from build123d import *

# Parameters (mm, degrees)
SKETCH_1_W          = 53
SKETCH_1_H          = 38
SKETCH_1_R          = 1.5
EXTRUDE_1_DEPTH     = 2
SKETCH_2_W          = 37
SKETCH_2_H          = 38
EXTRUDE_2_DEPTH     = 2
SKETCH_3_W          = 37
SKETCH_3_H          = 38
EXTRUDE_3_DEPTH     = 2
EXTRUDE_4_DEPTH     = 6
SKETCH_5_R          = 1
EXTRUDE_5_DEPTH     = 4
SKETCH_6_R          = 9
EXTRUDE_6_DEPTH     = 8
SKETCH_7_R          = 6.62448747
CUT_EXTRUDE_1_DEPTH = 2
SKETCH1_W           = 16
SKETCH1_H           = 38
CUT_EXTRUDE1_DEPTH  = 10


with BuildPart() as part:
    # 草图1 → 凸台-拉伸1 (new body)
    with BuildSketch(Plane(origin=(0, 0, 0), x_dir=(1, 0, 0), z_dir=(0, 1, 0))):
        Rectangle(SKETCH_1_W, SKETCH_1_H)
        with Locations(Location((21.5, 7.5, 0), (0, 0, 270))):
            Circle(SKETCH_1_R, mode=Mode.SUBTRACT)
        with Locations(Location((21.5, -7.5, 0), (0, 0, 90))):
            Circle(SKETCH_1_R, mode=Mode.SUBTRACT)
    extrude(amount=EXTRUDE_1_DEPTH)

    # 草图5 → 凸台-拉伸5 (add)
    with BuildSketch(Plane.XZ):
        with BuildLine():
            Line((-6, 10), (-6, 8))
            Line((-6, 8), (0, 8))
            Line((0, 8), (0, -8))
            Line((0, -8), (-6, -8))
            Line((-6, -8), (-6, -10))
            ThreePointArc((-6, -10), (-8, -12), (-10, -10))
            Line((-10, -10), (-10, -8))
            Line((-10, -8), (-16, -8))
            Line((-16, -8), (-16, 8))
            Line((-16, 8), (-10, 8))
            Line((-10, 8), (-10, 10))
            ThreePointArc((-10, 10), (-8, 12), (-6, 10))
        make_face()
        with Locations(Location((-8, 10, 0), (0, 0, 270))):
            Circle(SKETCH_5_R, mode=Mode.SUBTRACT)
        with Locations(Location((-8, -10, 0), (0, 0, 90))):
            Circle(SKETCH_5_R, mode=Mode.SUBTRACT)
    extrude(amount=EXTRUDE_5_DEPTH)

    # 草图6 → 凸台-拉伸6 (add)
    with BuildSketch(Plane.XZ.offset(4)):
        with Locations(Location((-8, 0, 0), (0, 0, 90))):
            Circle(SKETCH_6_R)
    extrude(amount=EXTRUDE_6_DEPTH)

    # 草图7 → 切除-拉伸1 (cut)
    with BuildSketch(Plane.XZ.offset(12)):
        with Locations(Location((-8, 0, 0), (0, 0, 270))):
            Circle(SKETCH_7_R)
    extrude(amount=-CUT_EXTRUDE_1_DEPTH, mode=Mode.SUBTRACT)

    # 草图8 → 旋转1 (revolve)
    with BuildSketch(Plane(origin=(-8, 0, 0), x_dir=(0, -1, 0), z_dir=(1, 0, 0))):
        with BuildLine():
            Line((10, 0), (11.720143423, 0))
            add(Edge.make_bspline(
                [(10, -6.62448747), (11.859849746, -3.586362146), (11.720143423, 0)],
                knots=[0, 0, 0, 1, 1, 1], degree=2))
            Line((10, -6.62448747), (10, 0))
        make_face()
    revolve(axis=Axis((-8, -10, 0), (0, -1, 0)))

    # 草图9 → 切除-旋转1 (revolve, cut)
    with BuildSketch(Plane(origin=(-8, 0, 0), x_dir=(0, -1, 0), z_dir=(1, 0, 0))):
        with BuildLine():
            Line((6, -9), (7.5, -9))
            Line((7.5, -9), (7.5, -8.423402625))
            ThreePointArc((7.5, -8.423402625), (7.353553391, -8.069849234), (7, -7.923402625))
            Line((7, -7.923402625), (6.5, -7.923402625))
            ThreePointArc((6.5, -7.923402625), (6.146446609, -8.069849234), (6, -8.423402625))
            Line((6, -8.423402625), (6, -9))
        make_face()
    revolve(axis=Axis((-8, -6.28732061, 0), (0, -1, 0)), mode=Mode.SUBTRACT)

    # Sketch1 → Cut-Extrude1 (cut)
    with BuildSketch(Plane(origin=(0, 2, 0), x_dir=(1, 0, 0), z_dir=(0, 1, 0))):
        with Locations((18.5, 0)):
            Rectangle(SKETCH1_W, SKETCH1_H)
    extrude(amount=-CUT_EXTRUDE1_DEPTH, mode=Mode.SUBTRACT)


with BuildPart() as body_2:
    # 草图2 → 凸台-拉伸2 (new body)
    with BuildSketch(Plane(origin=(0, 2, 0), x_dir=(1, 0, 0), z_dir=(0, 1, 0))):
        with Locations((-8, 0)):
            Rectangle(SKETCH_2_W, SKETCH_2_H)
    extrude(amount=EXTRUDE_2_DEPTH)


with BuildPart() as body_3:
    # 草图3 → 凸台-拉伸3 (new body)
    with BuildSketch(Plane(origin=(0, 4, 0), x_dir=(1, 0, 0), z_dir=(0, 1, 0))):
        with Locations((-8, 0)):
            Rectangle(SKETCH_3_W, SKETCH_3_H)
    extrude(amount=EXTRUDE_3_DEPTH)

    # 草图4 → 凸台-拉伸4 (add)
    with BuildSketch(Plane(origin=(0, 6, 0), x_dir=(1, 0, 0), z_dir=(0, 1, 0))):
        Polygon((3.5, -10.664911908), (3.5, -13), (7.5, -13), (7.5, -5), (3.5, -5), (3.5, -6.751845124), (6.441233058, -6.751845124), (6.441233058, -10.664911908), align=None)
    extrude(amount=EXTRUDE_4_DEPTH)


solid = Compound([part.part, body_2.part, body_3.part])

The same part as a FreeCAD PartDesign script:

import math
import FreeCAD as App
import Part
import Sketcher

V = App.Vector
Q = App.Units.Quantity


def add_polygon(sketch, points):
    """Adds a closed chain of lines whose ends are joined by coincident constraints."""
    first, n = sketch.GeometryCount, len(points)
    for a, b in zip(points, points[1:] + points[:1]):
        sketch.addGeometry(Part.LineSegment(App.Vector(*a, 0), App.Vector(*b, 0)), False)
    for i in range(n):
        sketch.addConstraint(Sketcher.Constraint("Coincident", first + i, 2, first + (i + 1) % n, 1))

doc = App.newDocument("Part")
body = doc.addObject("PartDesign::Body", "Body")

sketch1 = doc.addObject("Sketcher::SketchObject", "Sketch")
body.addObject(sketch1)
sketch1.AttachmentSupport = (doc.XZ_Plane, [""])
sketch1.MapMode = "FlatFace"
add_polygon(sketch1, [(-26.5, -19), (-26.5, 19), (26.5, 19), (26.5, -19)])
sketch1.addGeometry(Part.Circle(V(21.5, 7.5, 0), V(0, 0, 1), 1.5), False)
sketch1.addGeometry(Part.Circle(V(21.5, -7.5, 0), V(0, 0, 1), 1.5), False)
sketch1.addConstraint(Sketcher.Constraint("Vertical", 0))
sketch1.addConstraint(Sketcher.Constraint("Horizontal", 1))
sketch1.addConstraint(Sketcher.Constraint("Vertical", 2))
sketch1.addConstraint(Sketcher.Constraint("Horizontal", 3))
sketch1.addConstraint(Sketcher.Constraint("Equal", 4, 5))
sketch1.addConstraint(Sketcher.Constraint("Symmetric", 0, 2, 2, 2, -1, 1))
sketch1.addConstraint(Sketcher.Constraint("Symmetric", 4, 3, 5, 3, -1))
sketch1.addConstraint(Sketcher.Constraint("Diameter", 4, Q("3 mm")))
sketch1.addConstraint(Sketcher.Constraint("DistanceX", 1, 1, 1, 2, Q("53 mm")))
sketch1.addConstraint(Sketcher.Constraint("DistanceY", 0, 1, 0, 2, Q("38 mm")))
sketch1.addConstraint(Sketcher.Constraint("DistanceY", 5, 3, 4, 3, Q("15 mm")))
sketch1.addConstraint(Sketcher.Constraint("DistanceX", 0, 2, 4, 3, Q("48 mm")))
pad1 = doc.addObject("PartDesign::Pad", "Pad")
body.addObject(pad1)
pad1.Profile = sketch1
pad1.Length = 2
pad1.Reversed = True

sketch2 = doc.addObject("Sketcher::SketchObject", "Sketch001")
body.addObject(sketch2)
sketch2.AttachmentSupport = (doc.XZ_Plane, [""])
sketch2.MapMode = "FlatFace"
sketch2.addGeometry(Part.LineSegment(V(-6, 8, 0), V(-6, 10, 0)), False)
sketch2.addGeometry(Part.ArcOfCircle(Part.Circle(V(-8, 10, 0), V(0, 0, 1), 2), math.radians(0), math.radians(180)), False)
sketch2.addGeometry(Part.LineSegment(V(-10, 10, 0), V(-10, 8, 0)), False)
sketch2.addGeometry(Part.LineSegment(V(-10, 8, 0), V(-16, 8, 0)), False)
sketch2.addGeometry(Part.LineSegment(V(-16, 8, 0), V(-16, -8, 0)), False)
sketch2.addGeometry(Part.LineSegment(V(-16, -8, 0), V(-10, -8, 0)), False)
sketch2.addGeometry(Part.LineSegment(V(-10, -8, 0), V(-10, -10, 0)), False)
sketch2.addGeometry(Part.ArcOfCircle(Part.Circle(V(-8, -10, 0), V(0, 0, 1), 2), math.radians(180), math.radians(360)), False)
sketch2.addGeometry(Part.LineSegment(V(-6, -10, 0), V(-6, -8, 0)), False)
sketch2.addGeometry(Part.LineSegment(V(-6, -8, 0), V(0, -8, 0)), False)
sketch2.addGeometry(Part.LineSegment(V(0, -8, 0), V(0, 8, 0)), False)
sketch2.addGeometry(Part.LineSegment(V(0, 8, 0), V(-6, 8, 0)), False)
sketch2.addGeometry(Part.Circle(V(-8, -10, 0), V(0, 0, 1), 1), False)
sketch2.addGeometry(Part.Circle(V(-8, 10, 0), V(0, 0, 1), 1), False)
sketch2.addConstraint(Sketcher.Constraint("Tangent", 0, 2, 1, 1))
sketch2.addConstraint(Sketcher.Constraint("Tangent", 1, 2, 2, 1))
sketch2.addConstraint(Sketcher.Constraint("Coincident", 2, 2, 3, 1))
sketch2.addConstraint(Sketcher.Constraint("Coincident", 3, 2, 4, 1))
sketch2.addConstraint(Sketcher.Constraint("Coincident", 4, 2, 5, 1))
sketch2.addConstraint(Sketcher.Constraint("Coincident", 5, 2, 6, 1))
sketch2.addConstraint(Sketcher.Constraint("Tangent", 6, 2, 7, 1))
sketch2.addConstraint(Sketcher.Constraint("Tangent", 7, 2, 8, 1))
sketch2.addConstraint(Sketcher.Constraint("Coincident", 8, 2, 9, 1))
sketch2.addConstraint(Sketcher.Constraint("Coincident", 9, 2, 10, 1))
sketch2.addConstraint(Sketcher.Constraint("Coincident", 10, 2, 11, 1))
sketch2.addConstraint(Sketcher.Constraint("Coincident", 11, 2, 0, 1))
sketch2.addConstraint(Sketcher.Constraint("Vertical", 0))
sketch2.addConstraint(Sketcher.Constraint("Vertical", 2))
sketch2.addConstraint(Sketcher.Constraint("Horizontal", 3))
sketch2.addConstraint(Sketcher.Constraint("Vertical", 4))
sketch2.addConstraint(Sketcher.Constraint("Horizontal", 5))
sketch2.addConstraint(Sketcher.Constraint("Vertical", 6))
sketch2.addConstraint(Sketcher.Constraint("Vertical", 8))
sketch2.addConstraint(Sketcher.Constraint("Horizontal", 9))
sketch2.addConstraint(Sketcher.Constraint("Vertical", 10))
sketch2.addConstraint(Sketcher.Constraint("Horizontal", 11))
sketch2.addConstraint(Sketcher.Constraint("Coincident", 12, 3, 7, 3))
sketch2.addConstraint(Sketcher.Constraint("Coincident", 13, 3, 1, 3))
sketch2.addConstraint(Sketcher.Constraint("Equal", 1, 7))
sketch2.addConstraint(Sketcher.Constraint("Equal", 12, 13))
sketch2.addConstraint(Sketcher.Constraint("Symmetric", 9, 2, 10, 2, -1, 1))
sketch2.addConstraint(Sketcher.Constraint("Symmetric", 1, 3, 7, 3, -1))
sketch2.addConstraint(Sketcher.Constraint("Horizontal", 5, 2, 8, 2))
sketch2.addConstraint(Sketcher.Constraint("Horizontal", 3, 2, 10, 2))
sketch2.addConstraint(Sketcher.Constraint("Equal", 5, 9))
sketch2.addConstraint(Sketcher.Constraint("Diameter", 12, Q("2 mm")))
sketch2.addConstraint(Sketcher.Constraint("Radius", 1, Q("2 mm")))
sketch2.addConstraint(Sketcher.Constraint("DistanceX", 3, 2, 3, 1, Q("6 mm")))
sketch2.addConstraint(Sketcher.Constraint("DistanceY", 0, 1, 0, 2, Q("2 mm")))
sketch2.addConstraint(Sketcher.Constraint("DistanceY", 4, 2, 4, 1, Q("16 mm")))
pad2 = doc.addObject("PartDesign::Pad", "Pad001")
body.addObject(pad2)
pad2.Profile = sketch2
pad2.Length = 4

sketch3 = doc.addObject("Sketcher::SketchObject", "Sketch002")
body.addObject(sketch3)
sketch3.AttachmentSupport = (doc.XZ_Plane, [""])
sketch3.MapMode = "FlatFace"
sketch3.AttachmentOffset = App.Placement(V(0, 0, 4), App.Rotation())
sketch3.addGeometry(Part.Circle(V(-8, 0, 0), V(0, 0, 1), 9), False)
sketch3.addConstraint(Sketcher.Constraint("PointOnObject", 0, 3, -1))
sketch3.addConstraint(Sketcher.Constraint("Diameter", 0, Q("18 mm")))
sketch3.addConstraint(Sketcher.Constraint("DistanceX", 0, 3, -1, 1, Q("8 mm")))
pad3 = doc.addObject("PartDesign::Pad", "Pad002")
body.addObject(pad3)
pad3.Profile = sketch3
pad3.Length = 8

sketch4 = doc.addObject("Sketcher::SketchObject", "Sketch003")
body.addObject(sketch4)
sketch4.AttachmentSupport = (doc.XZ_Plane, [""])
sketch4.MapMode = "FlatFace"
sketch4.AttachmentOffset = App.Placement(V(0, 0, 12), App.Rotation())
sketch4.addGeometry(Part.Circle(V(-8, 0, 0), V(0, 0, 1), 7), False)
sketch4.addConstraint(Sketcher.Constraint("PointOnObject", 0, 3, -1))
sketch4.addConstraint(Sketcher.Constraint("DistanceX", 0, 3, -1, 1, Q("8 mm")))
sketch4.addConstraint(Sketcher.Constraint("Diameter", 0, Q("13.248975 mm")))
pocket1 = doc.addObject("PartDesign::Pocket", "Pocket")
body.addObject(pocket1)
pocket1.Profile = sketch4
pocket1.Length = 2

sketch5 = doc.addObject("Sketcher::SketchObject", "Sketch004")
body.addObject(sketch5)
sketch5.AttachmentSupport = (doc.YZ_Plane, [""])
sketch5.MapMode = "FlatFace"
sketch5.AttachmentOffset = App.Placement(V(0, 0, -8), App.Rotation())
sketch5.addGeometry(Part.LineSegment(V(-11.720143, 0, 0), V(-10, 0, 0)), False)
sketch5.addGeometry(Part.LineSegment(V(-10, 0, 0), V(-10, 6.624487, 0)), False)
sketch5.addGeometry(Part.BSplineCurve([V(-10, 6.624487, 0), V(-11.85985, 3.586362, 0), V(-11.720143, 0, 0)], [3, 3], [0, 1], False, 2, [1, 1, 1], False), False)
sketch5.addConstraint(Sketcher.Constraint("Block", 2))
sketch5.addConstraint(Sketcher.Constraint("Coincident", 0, 2, 1, 1))
sketch5.addConstraint(Sketcher.Constraint("Coincident", 1, 2, 2, 1))
sketch5.addConstraint(Sketcher.Constraint("Coincident", 2, 2, 0, 1))
sketch5.addConstraint(Sketcher.Constraint("Horizontal", 0))
sketch5.addConstraint(Sketcher.Constraint("Vertical", 1))
revolution = doc.addObject("PartDesign::Revolution", "Revolution")
body.addObject(revolution)
revolution.Profile = sketch5
revolution.ReferenceAxis = (sketch5, ["H_Axis"])
revolution.Angle = 360

sketch6 = doc.addObject("Sketcher::SketchObject", "Sketch005")
body.addObject(sketch6)
sketch6.AttachmentSupport = (doc.YZ_Plane, [""])
sketch6.MapMode = "FlatFace"
sketch6.AttachmentOffset = App.Placement(V(0, 0, -8), App.Rotation())
sketch6.addGeometry(Part.LineSegment(V(-6, 9, 0), V(-7.5, 9, 0)), False)
sketch6.addGeometry(Part.LineSegment(V(-7.5, 9, 0), V(-7.5, 8.42, 0)), False)
sketch6.addGeometry(Part.ArcOfCircle(Part.Circle(V(-7, 8.42, 0), V(0, 0, 1), 0.5), math.radians(180), math.radians(270)), False)
sketch6.addGeometry(Part.LineSegment(V(-7, 7.92, 0), V(-6.5, 7.92, 0)), False)
sketch6.addGeometry(Part.ArcOfCircle(Part.Circle(V(-6.5, 8.42, 0), V(0, 0, 1), 0.5), math.radians(-90), math.radians(0)), False)
sketch6.addGeometry(Part.LineSegment(V(-6, 8.42, 0), V(-6, 9, 0)), False)
sketch6.addConstraint(Sketcher.Constraint("Coincident", 0, 2, 1, 1))
sketch6.addConstraint(Sketcher.Constraint("Tangent", 1, 2, 2, 1))
sketch6.addConstraint(Sketcher.Constraint("Tangent", 2, 2, 3, 1))
sketch6.addConstraint(Sketcher.Constraint("Tangent", 3, 2, 4, 1))
sketch6.addConstraint(Sketcher.Constraint("Tangent", 4, 2, 5, 1))
sketch6.addConstraint(Sketcher.Constraint("Coincident", 5, 2, 0, 1))
sketch6.addConstraint(Sketcher.Constraint("Horizontal", 0))
sketch6.addConstraint(Sketcher.Constraint("Vertical", 1))
sketch6.addConstraint(Sketcher.Constraint("Horizontal", 3))
sketch6.addConstraint(Sketcher.Constraint("Vertical", 5))
sketch6.addConstraint(Sketcher.Constraint("Equal", 2, 4))
sketch6.addConstraint(Sketcher.Constraint("Radius", 2, Q("0.5 mm")))
sketch6.addConstraint(Sketcher.Constraint("DistanceX", 0, 2, 0, 1, Q("1.5 mm")))
sketch6.addConstraint(Sketcher.Constraint("DistanceX", 2, 3, -1, 1, Q("7 mm")))
sketch6.addConstraint(Sketcher.Constraint("DistanceY", -1, 1, 0, 2, Q("9 mm")))
sketch6.addConstraint(Sketcher.Constraint("DistanceY", 1, 2, 1, 1, Q("0.576597 mm")))
groove = doc.addObject("PartDesign::Groove", "Groove")
body.addObject(groove)
groove.Profile = sketch6
groove.ReferenceAxis = (sketch6, ["H_Axis"])
groove.Angle = 360

sketch7 = doc.addObject("Sketcher::SketchObject", "Sketch006")
body.addObject(sketch7)
sketch7.AttachmentSupport = (doc.XZ_Plane, [""])
sketch7.MapMode = "FlatFace"
sketch7.AttachmentOffset = App.Placement(V(0, 0, -2), App.Rotation())
add_polygon(sketch7, [(10, -19), (10, 19), (26, 19), (26, -19)])
sketch7.addConstraint(Sketcher.Constraint("Vertical", 0))
sketch7.addConstraint(Sketcher.Constraint("Horizontal", 1))
sketch7.addConstraint(Sketcher.Constraint("Vertical", 2))
sketch7.addConstraint(Sketcher.Constraint("Horizontal", 3))
sketch7.addConstraint(Sketcher.Constraint("DistanceX", 1, 1, 1, 2, Q("16 mm")))
sketch7.addConstraint(Sketcher.Constraint("DistanceY", 0, 1, 0, 2, Q("38 mm")))
sketch7.addConstraint(Sketcher.Constraint("DistanceY", -1, 1, 0, 2, Q("19 mm")))
sketch7.addConstraint(Sketcher.Constraint("DistanceX", -1, 1, 0, 2, Q("10.5 mm")))
pocket2 = doc.addObject("PartDesign::Pocket", "Pocket001")
body.addObject(pocket2)
pocket2.Profile = sketch7
pocket2.Length = 10
pocket2.Reversed = True
body2 = doc.addObject("PartDesign::Body", "Body001")

sketch8 = doc.addObject("Sketcher::SketchObject", "Sketch007")
body2.addObject(sketch8)
sketch8.AttachmentSupport = (doc.getObject("XZ_Plane001"), [""])
sketch8.MapMode = "FlatFace"
sketch8.AttachmentOffset = App.Placement(V(0, 0, -2), App.Rotation())
add_polygon(sketch8, [(-26, -19), (-26, 19), (10, 19), (10, -19)])
sketch8.addConstraint(Sketcher.Constraint("Vertical", 0))
sketch8.addConstraint(Sketcher.Constraint("Horizontal", 1))
sketch8.addConstraint(Sketcher.Constraint("Vertical", 2))
sketch8.addConstraint(Sketcher.Constraint("Horizontal", 3))
sketch8.addConstraint(Sketcher.Constraint("DistanceX", 1, 1, 1, 2, Q("37 mm")))
sketch8.addConstraint(Sketcher.Constraint("DistanceY", 0, 1, 0, 2, Q("38 mm")))
sketch8.addConstraint(Sketcher.Constraint("DistanceY", -1, 1, 0, 2, Q("19 mm")))
sketch8.addConstraint(Sketcher.Constraint("DistanceX", 0, 2, -1, 1, Q("26.5 mm")))
pad4 = doc.addObject("PartDesign::Pad", "Pad003")
body2.addObject(pad4)
pad4.Profile = sketch8
pad4.Length = 2
pad4.Reversed = True
body3 = doc.addObject("PartDesign::Body", "Body002")

sketch9 = doc.addObject("Sketcher::SketchObject", "Sketch008")
body3.addObject(sketch9)
sketch9.AttachmentSupport = (doc.getObject("XZ_Plane002"), [""])
sketch9.MapMode = "FlatFace"
sketch9.AttachmentOffset = App.Placement(V(0, 0, -4), App.Rotation())
add_polygon(sketch9, [(-26, -19), (-26, 19), (10, 19), (10, -19)])
sketch9.addConstraint(Sketcher.Constraint("Vertical", 0))
sketch9.addConstraint(Sketcher.Constraint("Horizontal", 1))
sketch9.addConstraint(Sketcher.Constraint("Vertical", 2))
sketch9.addConstraint(Sketcher.Constraint("Horizontal", 3))
sketch9.addConstraint(Sketcher.Constraint("DistanceX", 1, 1, 1, 2, Q("37 mm")))
sketch9.addConstraint(Sketcher.Constraint("DistanceY", 0, 1, 0, 2, Q("38 mm")))
sketch9.addConstraint(Sketcher.Constraint("DistanceY", -1, 1, 0, 2, Q("19 mm")))
sketch9.addConstraint(Sketcher.Constraint("DistanceX", 0, 2, -1, 1, Q("26.5 mm")))
pad5 = doc.addObject("PartDesign::Pad", "Pad004")
body3.addObject(pad5)
pad5.Profile = sketch9
pad5.Length = 2
pad5.Reversed = True

sketch10 = doc.addObject("Sketcher::SketchObject", "Sketch009")
body3.addObject(sketch10)
sketch10.AttachmentSupport = (doc.getObject("XZ_Plane002"), [""])
sketch10.MapMode = "FlatFace"
sketch10.AttachmentOffset = App.Placement(V(0, 0, -6), App.Rotation())
add_polygon(sketch10, [(3.5, 10.7), (3.5, 13), (7.5, 13), (7.5, 5), (3.5, 5), (3.5, 6.8), (6.4, 6.8), (6.4, 10.7)])
sketch10.addConstraint(Sketcher.Constraint("Vertical", 0))
sketch10.addConstraint(Sketcher.Constraint("Horizontal", 1))
sketch10.addConstraint(Sketcher.Constraint("Vertical", 2))
sketch10.addConstraint(Sketcher.Constraint("Horizontal", 3))
sketch10.addConstraint(Sketcher.Constraint("Vertical", 4))
sketch10.addConstraint(Sketcher.Constraint("Horizontal", 5))
sketch10.addConstraint(Sketcher.Constraint("Vertical", 6))
sketch10.addConstraint(Sketcher.Constraint("Horizontal", 7))
sketch10.addConstraint(Sketcher.Constraint("Vertical", 0, 2, 3, 2))
sketch10.addConstraint(Sketcher.Constraint("DistanceX", 1, 1, 1, 2, Q("4 mm")))
sketch10.addConstraint(Sketcher.Constraint("DistanceY", 2, 2, 2, 1, Q("8 mm")))
sketch10.addConstraint(Sketcher.Constraint("DistanceY", -1, 1, 0, 2, Q("13 mm")))
sketch10.addConstraint(Sketcher.Constraint("DistanceX", -1, 1, 0, 2, Q("3.5 mm")))
sketch10.addConstraint(Sketcher.Constraint("DistanceY", 0, 1, 0, 2, Q("2.335088 mm")))
sketch10.addConstraint(Sketcher.Constraint("DistanceX", 5, 1, 5, 2, Q("2.941233 mm")))
sketch10.addConstraint(Sketcher.Constraint("DistanceY", 4, 1, 4, 2, Q("1.751845 mm")))
pad6 = doc.addObject("PartDesign::Pad", "Pad005")
body3.addObject(pad6)
pad6.Profile = sketch10
pad6.Length = 6
pad6.Reversed = True

doc.recompute()
